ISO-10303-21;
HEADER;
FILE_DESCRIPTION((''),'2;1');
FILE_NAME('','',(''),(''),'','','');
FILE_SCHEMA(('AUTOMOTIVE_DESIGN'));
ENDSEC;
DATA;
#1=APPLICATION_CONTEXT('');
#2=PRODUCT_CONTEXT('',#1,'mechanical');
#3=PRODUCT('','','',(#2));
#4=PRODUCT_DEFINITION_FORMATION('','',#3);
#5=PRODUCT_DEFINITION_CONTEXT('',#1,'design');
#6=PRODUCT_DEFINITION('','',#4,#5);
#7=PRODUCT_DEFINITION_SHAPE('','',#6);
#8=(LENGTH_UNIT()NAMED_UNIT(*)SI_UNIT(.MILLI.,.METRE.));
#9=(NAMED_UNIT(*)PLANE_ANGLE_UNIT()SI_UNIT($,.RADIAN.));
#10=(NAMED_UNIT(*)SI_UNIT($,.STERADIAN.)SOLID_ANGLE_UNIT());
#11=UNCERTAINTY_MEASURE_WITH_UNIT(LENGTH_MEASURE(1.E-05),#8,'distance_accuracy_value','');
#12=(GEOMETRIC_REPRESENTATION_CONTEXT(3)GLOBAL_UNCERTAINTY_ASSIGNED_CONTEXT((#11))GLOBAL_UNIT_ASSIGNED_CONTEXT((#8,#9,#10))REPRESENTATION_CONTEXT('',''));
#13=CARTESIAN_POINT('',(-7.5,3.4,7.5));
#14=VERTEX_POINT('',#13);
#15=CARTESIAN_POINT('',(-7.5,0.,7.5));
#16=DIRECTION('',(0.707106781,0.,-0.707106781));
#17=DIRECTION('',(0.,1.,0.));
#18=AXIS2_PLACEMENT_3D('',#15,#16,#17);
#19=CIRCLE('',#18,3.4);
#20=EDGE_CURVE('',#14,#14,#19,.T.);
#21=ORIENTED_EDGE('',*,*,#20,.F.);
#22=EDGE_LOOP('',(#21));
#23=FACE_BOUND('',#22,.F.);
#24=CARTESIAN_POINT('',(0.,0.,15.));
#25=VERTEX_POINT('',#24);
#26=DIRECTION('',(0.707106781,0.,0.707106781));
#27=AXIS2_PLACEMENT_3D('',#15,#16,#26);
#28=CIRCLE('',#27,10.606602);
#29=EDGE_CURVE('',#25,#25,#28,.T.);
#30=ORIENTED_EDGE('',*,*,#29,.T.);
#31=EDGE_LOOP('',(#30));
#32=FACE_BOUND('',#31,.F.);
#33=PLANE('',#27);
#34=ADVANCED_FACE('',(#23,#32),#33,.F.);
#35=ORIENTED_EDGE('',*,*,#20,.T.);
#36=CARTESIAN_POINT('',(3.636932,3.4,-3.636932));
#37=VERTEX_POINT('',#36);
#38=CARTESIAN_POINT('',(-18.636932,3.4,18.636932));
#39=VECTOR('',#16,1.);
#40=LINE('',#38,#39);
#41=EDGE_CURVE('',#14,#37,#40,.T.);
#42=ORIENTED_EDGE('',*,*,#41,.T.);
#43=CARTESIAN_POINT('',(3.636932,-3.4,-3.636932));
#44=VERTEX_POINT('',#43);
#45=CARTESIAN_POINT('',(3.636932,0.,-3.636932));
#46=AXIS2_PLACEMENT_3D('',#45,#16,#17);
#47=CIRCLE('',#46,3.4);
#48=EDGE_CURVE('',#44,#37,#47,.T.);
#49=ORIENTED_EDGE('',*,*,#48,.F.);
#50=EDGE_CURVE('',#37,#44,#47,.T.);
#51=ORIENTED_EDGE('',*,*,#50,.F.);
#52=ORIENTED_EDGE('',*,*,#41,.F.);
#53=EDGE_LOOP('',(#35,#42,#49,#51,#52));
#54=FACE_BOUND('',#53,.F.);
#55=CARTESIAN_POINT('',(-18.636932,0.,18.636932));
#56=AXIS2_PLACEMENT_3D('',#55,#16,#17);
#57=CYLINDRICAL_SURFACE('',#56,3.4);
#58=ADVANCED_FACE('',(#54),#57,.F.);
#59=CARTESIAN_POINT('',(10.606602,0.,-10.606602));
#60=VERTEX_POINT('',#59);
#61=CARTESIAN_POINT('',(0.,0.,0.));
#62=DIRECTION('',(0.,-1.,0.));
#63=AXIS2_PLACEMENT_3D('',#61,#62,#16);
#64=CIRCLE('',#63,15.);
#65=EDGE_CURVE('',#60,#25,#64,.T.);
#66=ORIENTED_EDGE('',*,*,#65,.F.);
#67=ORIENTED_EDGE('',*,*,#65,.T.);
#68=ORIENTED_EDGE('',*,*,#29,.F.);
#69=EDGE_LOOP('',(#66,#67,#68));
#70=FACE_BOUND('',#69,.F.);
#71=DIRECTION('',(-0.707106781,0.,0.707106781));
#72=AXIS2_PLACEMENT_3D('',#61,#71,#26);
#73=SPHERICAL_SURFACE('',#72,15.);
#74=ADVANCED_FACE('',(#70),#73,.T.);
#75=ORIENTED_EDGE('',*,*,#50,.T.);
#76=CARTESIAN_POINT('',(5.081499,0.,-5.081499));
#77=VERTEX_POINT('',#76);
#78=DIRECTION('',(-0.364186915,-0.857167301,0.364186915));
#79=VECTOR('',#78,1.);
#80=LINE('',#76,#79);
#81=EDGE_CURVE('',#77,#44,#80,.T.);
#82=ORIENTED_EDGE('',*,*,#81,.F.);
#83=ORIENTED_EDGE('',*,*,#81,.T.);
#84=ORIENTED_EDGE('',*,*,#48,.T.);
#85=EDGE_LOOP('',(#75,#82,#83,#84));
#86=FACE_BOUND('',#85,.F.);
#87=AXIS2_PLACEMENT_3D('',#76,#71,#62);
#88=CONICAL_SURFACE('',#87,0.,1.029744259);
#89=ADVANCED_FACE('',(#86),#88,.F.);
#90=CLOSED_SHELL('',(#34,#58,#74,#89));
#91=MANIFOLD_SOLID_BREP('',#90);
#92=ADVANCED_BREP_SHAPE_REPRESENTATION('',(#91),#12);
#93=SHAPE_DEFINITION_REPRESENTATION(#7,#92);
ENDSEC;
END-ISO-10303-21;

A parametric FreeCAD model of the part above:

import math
import FreeCAD as App
import Part
import Sketcher
from FreeCAD import Vector
Q = App.Units.Quantity

doc = App.newDocument("Part")
body = doc.addObject("PartDesign::Body", "Body")

# Sketch on XZ plane
sketch1 = body.newObject("Sketcher::SketchObject", "Sketch")
sketch1.AttachmentSupport = (doc.getObject("XZ_Plane"), [""])
sketch1.MapMode = "FlatFace"
sketch1.addGeometry(Part.LineSegment(Vector(-8, 8, 0), Vector(11, -11, 0)), False)
sketch1.addGeometry(Part.ArcOfCircle(Part.Circle(Vector(0, 0, 0), Vector(0, 0, 1), 15), math.radians(-45), math.radians(90)), False)
sketch1.addGeometry(Part.LineSegment(Vector(0, 15, 0), Vector(-8, 8, 0)), False)
sketch1.addGeometry(Part.LineSegment(Vector(-7, 7, 0), Vector(11, -11, 0)), True)  # axis
sketch1.addConstraint(Sketcher.Constraint("Coincident", 0, 2, 1, 1))
sketch1.addConstraint(Sketcher.Constraint("Coincident", 1, 2, 2, 1))
sketch1.addConstraint(Sketcher.Constraint("Coincident", 2, 2, 0, 1))
sketch1.addConstraint(Sketcher.Constraint("Coincident", 1, 3, -1, 1))
sketch1.addConstraint(Sketcher.Constraint("Coincident", 3, 1, 2, 2))
sketch1.addConstraint(Sketcher.Constraint("Coincident", 3, 2, 0, 2))
sketch1.addConstraint(Sketcher.Constraint("PointOnObject", 1, 2, -2))
sketch1.addConstraint(Sketcher.Constraint("Perpendicular", 0, 2))
sketch1.addConstraint(Sketcher.Constraint("Radius", 1, 15.0))
sketch1.addConstraint(Sketcher.Constraint("Angle", 0, Q("-45 deg")))
sketch1.addConstraint(Sketcher.Constraint("DistanceX", 2, 2, -1, 1, 7.5))
revolution = body.newObject("PartDesign::Revolution", "Revolution")
revolution.Profile = sketch1
revolution.ReferenceAxis = (sketch1, ["Axis0"])
revolution.Angle = 360

# Sketch on an angled plane
sketch2 = body.newObject("Sketcher::SketchObject", "Sketch001")
sketch2.Placement = App.Placement(Vector(-7.5, 0, 7.5), App.Rotation(Vector(0, -1, 0), Vector(0.707106781, 0, 0.707106781), Vector(-0.707106781, 0, 0.707106781), "ZXY"))
sketch2.addGeometry(Part.Circle(Vector(0, 0, 0), Vector(0, 0, 1), 3.4), False)
sketch2.addConstraint(Sketcher.Constraint("Coincident", 0, 3, -1, 1))
sketch2.addConstraint(Sketcher.Constraint("Diameter", 0, 6.8))
doc.recompute()
hole = body.newObject("PartDesign::Hole", "Hole")
hole.Profile = sketch2
hole.ThreadType = "None"
hole.Diameter = 6.8
hole.DepthType = "Dimension"
hole.Depth = 15.75
hole.DrillPoint = "Angled"
hole.DrillPointAngle = 118

doc.recompute()
